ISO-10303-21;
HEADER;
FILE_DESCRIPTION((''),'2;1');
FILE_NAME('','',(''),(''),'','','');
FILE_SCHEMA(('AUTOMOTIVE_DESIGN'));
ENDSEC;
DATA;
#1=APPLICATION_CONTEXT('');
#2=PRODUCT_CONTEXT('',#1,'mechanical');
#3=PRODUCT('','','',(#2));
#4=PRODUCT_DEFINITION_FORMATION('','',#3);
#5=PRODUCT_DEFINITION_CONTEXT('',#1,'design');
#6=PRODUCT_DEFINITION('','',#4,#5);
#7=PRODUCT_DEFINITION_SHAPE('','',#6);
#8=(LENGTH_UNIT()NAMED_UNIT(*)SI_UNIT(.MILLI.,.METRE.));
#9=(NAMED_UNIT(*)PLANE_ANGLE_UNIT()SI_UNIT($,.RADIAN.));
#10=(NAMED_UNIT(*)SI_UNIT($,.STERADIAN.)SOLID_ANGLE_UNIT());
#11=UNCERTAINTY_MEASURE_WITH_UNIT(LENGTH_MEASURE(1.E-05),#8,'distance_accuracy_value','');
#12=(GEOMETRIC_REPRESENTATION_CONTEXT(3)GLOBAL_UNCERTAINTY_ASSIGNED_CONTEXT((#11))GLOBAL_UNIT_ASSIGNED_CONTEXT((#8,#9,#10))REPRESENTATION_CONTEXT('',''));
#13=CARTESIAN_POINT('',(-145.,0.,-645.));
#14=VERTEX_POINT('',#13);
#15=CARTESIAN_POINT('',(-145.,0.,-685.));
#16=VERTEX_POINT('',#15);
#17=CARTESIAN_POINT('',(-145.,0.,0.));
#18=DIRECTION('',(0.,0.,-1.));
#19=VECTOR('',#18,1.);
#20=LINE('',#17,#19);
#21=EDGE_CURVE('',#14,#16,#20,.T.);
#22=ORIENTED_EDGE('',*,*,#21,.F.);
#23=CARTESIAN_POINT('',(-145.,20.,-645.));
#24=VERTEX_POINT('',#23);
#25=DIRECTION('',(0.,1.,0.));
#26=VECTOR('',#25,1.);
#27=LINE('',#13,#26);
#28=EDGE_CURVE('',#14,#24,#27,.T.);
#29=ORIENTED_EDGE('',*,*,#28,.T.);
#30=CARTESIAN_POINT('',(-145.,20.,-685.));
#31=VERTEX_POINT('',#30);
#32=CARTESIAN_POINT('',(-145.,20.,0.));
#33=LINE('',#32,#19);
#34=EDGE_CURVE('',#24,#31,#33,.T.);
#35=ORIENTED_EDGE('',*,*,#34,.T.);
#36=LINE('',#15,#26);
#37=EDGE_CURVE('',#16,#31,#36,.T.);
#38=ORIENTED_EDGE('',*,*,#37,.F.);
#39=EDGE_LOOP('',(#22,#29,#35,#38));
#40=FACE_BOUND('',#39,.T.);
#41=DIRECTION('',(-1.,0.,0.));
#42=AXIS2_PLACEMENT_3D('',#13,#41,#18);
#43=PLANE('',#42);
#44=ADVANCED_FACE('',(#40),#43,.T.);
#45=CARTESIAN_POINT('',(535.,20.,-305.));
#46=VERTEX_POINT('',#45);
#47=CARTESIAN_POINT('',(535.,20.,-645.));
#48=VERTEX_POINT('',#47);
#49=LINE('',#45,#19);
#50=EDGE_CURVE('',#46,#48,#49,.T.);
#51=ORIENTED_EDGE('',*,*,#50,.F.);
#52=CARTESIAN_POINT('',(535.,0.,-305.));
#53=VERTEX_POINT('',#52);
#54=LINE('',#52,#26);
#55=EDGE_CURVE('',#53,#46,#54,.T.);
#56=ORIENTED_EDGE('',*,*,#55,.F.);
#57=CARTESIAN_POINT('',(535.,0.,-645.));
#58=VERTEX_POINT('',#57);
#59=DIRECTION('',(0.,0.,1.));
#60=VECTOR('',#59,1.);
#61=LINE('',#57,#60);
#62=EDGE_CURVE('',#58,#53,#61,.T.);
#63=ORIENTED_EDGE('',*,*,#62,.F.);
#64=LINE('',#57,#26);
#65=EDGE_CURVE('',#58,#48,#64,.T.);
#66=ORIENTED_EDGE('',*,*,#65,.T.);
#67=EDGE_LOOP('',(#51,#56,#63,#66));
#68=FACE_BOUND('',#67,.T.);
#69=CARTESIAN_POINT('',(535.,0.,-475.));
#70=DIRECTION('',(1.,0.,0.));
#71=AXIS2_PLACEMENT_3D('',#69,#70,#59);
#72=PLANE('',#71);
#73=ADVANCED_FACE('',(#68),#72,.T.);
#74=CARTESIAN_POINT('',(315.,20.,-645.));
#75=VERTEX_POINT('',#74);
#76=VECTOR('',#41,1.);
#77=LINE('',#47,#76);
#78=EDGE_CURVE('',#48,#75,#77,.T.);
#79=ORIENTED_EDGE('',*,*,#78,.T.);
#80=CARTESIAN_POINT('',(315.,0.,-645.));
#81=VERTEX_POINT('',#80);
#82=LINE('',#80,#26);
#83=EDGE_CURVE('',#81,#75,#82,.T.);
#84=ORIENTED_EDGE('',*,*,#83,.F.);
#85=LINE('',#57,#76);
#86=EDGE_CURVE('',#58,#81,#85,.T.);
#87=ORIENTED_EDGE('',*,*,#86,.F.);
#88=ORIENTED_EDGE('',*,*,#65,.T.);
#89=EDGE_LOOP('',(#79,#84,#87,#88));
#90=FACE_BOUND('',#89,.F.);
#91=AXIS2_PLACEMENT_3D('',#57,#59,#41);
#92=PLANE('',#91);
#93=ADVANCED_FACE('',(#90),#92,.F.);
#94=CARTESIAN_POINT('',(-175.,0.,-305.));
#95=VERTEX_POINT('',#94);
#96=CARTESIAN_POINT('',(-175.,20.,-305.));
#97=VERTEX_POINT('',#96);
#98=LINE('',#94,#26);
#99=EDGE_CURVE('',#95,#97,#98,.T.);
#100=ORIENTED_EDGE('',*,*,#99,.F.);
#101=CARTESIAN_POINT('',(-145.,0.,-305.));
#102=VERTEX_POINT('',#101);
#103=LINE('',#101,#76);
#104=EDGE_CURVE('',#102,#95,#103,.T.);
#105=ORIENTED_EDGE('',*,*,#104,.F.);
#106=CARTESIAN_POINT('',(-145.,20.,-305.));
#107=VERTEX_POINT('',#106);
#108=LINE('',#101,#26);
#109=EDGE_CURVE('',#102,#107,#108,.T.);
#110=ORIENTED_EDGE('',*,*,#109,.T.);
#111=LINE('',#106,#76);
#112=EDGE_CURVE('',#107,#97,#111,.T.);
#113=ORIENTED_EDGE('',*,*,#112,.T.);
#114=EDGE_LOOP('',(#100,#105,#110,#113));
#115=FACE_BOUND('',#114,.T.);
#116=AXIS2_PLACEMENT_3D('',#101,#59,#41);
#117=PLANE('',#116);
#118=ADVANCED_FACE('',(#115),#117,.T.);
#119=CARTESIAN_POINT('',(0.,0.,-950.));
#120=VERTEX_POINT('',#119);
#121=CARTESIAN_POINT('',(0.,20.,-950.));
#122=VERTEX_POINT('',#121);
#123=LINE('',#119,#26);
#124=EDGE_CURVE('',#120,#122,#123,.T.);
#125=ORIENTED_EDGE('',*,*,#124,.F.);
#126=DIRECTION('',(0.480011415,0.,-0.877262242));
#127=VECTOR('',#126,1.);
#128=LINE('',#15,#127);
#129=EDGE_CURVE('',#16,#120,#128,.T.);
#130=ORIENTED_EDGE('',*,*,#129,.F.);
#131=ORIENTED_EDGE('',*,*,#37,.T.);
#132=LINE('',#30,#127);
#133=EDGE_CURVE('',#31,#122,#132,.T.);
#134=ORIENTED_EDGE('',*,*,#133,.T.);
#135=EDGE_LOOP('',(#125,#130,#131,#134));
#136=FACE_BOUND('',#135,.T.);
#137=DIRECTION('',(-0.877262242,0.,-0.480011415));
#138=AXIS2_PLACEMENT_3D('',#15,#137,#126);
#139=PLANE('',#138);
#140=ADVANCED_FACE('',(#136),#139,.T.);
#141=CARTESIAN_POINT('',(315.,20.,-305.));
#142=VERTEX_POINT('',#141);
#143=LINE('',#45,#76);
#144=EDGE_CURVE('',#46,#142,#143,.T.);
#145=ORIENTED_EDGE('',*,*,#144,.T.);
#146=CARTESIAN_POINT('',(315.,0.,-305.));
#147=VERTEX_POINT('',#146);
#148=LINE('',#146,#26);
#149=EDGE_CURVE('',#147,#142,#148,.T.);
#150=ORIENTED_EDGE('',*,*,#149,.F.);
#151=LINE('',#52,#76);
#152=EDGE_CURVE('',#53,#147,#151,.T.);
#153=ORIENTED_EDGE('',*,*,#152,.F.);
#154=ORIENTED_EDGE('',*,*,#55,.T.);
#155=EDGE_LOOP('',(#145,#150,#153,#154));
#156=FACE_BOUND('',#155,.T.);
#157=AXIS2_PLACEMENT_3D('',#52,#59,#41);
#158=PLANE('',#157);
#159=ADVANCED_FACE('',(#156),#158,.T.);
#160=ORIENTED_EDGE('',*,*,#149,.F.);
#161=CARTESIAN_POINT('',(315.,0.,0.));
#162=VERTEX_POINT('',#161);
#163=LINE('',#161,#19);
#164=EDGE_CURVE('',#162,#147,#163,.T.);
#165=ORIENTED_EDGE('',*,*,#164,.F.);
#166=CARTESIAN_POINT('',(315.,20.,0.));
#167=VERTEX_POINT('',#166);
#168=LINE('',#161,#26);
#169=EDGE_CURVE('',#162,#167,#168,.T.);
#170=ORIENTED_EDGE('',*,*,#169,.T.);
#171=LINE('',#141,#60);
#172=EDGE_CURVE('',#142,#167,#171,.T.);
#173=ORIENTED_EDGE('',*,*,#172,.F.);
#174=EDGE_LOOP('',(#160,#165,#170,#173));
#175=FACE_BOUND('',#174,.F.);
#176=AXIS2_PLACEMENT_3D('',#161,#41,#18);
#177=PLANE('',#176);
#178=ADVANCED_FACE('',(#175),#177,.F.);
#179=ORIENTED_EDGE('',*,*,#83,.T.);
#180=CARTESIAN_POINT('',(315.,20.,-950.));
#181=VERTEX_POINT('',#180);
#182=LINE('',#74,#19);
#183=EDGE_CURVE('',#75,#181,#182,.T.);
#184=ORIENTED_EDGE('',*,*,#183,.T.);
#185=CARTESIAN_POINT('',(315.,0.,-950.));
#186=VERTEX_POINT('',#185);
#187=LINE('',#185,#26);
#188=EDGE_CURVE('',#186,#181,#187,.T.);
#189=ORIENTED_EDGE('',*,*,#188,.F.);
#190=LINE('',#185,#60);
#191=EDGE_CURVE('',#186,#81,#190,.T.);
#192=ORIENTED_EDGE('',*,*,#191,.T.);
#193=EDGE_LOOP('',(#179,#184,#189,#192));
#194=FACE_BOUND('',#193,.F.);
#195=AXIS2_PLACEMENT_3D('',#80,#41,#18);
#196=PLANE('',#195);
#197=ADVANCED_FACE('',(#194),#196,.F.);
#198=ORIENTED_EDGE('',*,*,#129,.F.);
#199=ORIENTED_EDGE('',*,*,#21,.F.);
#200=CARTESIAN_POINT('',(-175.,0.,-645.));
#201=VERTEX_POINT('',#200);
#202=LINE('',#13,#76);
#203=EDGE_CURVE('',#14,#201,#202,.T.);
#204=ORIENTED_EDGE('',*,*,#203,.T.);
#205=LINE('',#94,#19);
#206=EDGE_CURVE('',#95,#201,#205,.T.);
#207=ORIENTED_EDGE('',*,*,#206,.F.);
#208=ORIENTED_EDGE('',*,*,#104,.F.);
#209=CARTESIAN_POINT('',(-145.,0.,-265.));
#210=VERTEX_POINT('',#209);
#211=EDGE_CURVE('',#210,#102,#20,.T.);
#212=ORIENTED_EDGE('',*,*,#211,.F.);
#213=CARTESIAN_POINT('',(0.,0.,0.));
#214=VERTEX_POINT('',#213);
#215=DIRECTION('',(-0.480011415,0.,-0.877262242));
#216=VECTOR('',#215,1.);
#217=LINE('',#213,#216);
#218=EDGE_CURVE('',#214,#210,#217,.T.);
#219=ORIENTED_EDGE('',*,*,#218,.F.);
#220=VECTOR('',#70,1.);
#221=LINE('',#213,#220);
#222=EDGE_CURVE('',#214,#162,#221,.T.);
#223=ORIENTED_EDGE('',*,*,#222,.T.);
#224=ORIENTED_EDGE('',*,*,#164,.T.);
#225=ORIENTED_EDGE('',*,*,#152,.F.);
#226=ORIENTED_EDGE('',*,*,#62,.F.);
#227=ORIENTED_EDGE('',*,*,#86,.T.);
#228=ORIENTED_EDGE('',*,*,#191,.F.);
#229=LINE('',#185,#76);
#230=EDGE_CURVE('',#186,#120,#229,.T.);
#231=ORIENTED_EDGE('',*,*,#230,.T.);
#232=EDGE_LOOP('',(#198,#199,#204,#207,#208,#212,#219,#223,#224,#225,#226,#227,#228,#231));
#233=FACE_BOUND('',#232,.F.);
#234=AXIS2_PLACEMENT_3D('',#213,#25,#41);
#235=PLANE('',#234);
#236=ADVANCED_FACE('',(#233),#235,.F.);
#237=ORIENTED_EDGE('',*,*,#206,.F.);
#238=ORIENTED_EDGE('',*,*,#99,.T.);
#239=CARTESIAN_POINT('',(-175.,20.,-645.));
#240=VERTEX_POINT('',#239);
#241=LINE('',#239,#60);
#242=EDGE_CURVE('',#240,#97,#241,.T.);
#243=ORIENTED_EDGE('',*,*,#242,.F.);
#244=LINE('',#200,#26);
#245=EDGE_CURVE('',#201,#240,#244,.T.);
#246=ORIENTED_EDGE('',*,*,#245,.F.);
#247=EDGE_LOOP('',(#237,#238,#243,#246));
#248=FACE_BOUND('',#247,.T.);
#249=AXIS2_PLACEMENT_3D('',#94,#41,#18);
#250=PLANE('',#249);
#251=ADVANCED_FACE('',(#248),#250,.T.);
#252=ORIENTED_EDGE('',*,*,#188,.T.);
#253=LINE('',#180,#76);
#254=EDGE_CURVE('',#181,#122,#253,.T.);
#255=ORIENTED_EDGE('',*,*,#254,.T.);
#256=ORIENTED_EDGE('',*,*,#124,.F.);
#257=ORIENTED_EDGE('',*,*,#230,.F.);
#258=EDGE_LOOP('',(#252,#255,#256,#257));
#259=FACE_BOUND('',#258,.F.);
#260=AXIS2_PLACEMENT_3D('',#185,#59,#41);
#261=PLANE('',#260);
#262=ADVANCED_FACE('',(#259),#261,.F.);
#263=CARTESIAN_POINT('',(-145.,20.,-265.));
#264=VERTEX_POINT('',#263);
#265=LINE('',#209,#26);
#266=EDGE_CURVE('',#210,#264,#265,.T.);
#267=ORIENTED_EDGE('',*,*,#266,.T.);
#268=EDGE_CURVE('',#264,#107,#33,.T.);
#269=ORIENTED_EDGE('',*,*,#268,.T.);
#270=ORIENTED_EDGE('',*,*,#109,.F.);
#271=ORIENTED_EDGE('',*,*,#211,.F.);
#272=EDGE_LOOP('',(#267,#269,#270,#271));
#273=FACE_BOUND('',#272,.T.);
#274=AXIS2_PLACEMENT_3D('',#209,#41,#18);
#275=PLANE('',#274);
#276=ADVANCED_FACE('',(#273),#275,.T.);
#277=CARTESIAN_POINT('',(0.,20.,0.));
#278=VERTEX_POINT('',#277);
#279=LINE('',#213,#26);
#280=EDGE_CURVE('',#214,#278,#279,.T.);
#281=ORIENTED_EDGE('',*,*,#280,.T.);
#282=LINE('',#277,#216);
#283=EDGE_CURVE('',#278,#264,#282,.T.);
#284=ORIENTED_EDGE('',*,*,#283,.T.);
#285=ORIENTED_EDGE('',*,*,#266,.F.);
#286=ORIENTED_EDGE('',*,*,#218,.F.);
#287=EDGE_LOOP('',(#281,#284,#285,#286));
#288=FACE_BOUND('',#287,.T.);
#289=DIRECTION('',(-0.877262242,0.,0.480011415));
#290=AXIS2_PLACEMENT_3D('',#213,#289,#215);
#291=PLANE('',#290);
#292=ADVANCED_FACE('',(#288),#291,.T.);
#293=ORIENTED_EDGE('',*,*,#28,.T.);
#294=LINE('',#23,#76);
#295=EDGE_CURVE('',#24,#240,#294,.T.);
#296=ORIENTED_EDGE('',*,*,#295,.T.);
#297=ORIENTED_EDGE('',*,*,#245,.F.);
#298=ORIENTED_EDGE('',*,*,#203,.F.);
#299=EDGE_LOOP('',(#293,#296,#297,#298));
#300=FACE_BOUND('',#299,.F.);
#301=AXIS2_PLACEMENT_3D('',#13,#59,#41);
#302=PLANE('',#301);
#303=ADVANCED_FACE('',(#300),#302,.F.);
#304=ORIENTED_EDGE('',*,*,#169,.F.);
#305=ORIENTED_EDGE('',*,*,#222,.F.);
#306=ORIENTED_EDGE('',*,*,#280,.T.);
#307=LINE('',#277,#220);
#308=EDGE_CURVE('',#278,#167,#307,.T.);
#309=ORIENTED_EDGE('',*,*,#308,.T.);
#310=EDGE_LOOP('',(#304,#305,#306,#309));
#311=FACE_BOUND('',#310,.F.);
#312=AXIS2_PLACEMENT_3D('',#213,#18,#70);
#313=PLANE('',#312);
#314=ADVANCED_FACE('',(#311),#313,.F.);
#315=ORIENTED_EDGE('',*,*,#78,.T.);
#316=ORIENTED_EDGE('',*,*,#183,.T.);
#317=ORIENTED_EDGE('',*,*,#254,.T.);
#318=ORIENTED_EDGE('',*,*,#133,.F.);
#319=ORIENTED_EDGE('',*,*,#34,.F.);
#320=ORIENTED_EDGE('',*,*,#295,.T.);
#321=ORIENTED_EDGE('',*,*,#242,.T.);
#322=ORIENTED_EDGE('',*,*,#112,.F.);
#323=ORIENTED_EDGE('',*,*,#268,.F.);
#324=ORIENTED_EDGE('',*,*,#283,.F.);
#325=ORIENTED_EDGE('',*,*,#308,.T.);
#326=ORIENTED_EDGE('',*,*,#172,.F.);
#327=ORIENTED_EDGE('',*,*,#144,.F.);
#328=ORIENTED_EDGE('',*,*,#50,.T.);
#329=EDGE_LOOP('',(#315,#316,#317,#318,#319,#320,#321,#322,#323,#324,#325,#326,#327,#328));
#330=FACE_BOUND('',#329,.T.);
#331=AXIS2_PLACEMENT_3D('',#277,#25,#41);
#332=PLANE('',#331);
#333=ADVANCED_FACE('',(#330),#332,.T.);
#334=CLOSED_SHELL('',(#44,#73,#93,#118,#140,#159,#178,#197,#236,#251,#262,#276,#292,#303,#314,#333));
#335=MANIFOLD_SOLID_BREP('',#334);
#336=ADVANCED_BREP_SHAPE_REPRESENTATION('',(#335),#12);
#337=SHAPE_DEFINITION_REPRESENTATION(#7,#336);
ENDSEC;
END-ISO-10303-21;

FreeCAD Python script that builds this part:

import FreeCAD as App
import Part
import Sketcher

V = App.Vector
Q = App.Units.Quantity


def add_polygon(sketch, points):
    """Adds a closed chain of lines whose ends are joined by coincident constraints."""
    first, n = sketch.GeometryCount, len(points)
    for a, b in zip(points, points[1:] + points[:1]):
        sketch.addGeometry(Part.LineSegment(App.Vector(*a, 0), App.Vector(*b, 0)), False)
    for i in range(n):
        sketch.addConstraint(Sketcher.Constraint("Coincident", first + i, 2, first + (i + 1) % n, 1))

doc = App.newDocument("Part")
body = doc.addObject("PartDesign::Body", "Body")

# Sketch on XZ plane
sketch1 = body.newObject("Sketcher::SketchObject", "Sketch")
sketch1.AttachmentSupport = (doc.getObject("XZ_Plane"), [""])
sketch1.MapMode = "FlatFace"
add_polygon(sketch1, [(315, 0), (315, -305), (535, -305), (535, -645), (315, -645), (315, -950), (0, -950), (-145, -685), (-145, -645), (-175, -645), (-175, -305), (-145, -305), (-145, -265), (0, 0)])  # lines 0-13
sketch1.addConstraint([
    Sketcher.Constraint("Vertical", 0),
    Sketcher.Constraint("Horizontal", 1),
    Sketcher.Constraint("Vertical", 2),
    Sketcher.Constraint("Horizontal", 3),
    Sketcher.Constraint("Vertical", 4),
    Sketcher.Constraint("Horizontal", 5),
    Sketcher.Constraint("Vertical", 7),
    Sketcher.Constraint("Horizontal", 8),
    Sketcher.Constraint("Vertical", 9),
    Sketcher.Constraint("Horizontal", 10),
    Sketcher.Constraint("Vertical", 11),
    Sketcher.Constraint("Horizontal", 13),
    Sketcher.Constraint("Coincident", 12, 2, -1, 1),
    Sketcher.Constraint("PointOnObject", 5, 2, -2),
    Sketcher.Constraint("Horizontal", 3, 2, 7, 2),
    Sketcher.Constraint("Horizontal", 1, 2, 9, 2),
    Sketcher.Constraint("Vertical", 0, 2, 3, 2),
    Sketcher.Constraint("Vertical", 7, 2, 10, 2),
    Sketcher.Constraint("Equal", 0, 4),
    Sketcher.Constraint("Equal", 7, 11),
    Sketcher.Constraint("DistanceX", 1, 1, 1, 2, Q("220 mm")),
    Sketcher.Constraint("DistanceX", 5, 2, 5, 1, Q("315 mm")),
    Sketcher.Constraint("DistanceX", 8, 2, 8, 1, Q("30 mm")),
    Sketcher.Constraint("DistanceY", 7, 1, 7, 2, Q("40 mm")),
    Sketcher.Constraint("DistanceY", 4, 2, -1, 1, Q("950 mm")),
    Sketcher.Constraint("DistanceX", 8, 2, -1, 1, Q("175 mm")),
    Sketcher.Constraint("DistanceY", 0, 2, 0, 1, Q("305 mm")),
])
pad1 = body.newObject("PartDesign::Pad", "Pad")
pad1.Profile = sketch1
pad1.Length = 20
pad1.Reversed = True

doc.recompute()
